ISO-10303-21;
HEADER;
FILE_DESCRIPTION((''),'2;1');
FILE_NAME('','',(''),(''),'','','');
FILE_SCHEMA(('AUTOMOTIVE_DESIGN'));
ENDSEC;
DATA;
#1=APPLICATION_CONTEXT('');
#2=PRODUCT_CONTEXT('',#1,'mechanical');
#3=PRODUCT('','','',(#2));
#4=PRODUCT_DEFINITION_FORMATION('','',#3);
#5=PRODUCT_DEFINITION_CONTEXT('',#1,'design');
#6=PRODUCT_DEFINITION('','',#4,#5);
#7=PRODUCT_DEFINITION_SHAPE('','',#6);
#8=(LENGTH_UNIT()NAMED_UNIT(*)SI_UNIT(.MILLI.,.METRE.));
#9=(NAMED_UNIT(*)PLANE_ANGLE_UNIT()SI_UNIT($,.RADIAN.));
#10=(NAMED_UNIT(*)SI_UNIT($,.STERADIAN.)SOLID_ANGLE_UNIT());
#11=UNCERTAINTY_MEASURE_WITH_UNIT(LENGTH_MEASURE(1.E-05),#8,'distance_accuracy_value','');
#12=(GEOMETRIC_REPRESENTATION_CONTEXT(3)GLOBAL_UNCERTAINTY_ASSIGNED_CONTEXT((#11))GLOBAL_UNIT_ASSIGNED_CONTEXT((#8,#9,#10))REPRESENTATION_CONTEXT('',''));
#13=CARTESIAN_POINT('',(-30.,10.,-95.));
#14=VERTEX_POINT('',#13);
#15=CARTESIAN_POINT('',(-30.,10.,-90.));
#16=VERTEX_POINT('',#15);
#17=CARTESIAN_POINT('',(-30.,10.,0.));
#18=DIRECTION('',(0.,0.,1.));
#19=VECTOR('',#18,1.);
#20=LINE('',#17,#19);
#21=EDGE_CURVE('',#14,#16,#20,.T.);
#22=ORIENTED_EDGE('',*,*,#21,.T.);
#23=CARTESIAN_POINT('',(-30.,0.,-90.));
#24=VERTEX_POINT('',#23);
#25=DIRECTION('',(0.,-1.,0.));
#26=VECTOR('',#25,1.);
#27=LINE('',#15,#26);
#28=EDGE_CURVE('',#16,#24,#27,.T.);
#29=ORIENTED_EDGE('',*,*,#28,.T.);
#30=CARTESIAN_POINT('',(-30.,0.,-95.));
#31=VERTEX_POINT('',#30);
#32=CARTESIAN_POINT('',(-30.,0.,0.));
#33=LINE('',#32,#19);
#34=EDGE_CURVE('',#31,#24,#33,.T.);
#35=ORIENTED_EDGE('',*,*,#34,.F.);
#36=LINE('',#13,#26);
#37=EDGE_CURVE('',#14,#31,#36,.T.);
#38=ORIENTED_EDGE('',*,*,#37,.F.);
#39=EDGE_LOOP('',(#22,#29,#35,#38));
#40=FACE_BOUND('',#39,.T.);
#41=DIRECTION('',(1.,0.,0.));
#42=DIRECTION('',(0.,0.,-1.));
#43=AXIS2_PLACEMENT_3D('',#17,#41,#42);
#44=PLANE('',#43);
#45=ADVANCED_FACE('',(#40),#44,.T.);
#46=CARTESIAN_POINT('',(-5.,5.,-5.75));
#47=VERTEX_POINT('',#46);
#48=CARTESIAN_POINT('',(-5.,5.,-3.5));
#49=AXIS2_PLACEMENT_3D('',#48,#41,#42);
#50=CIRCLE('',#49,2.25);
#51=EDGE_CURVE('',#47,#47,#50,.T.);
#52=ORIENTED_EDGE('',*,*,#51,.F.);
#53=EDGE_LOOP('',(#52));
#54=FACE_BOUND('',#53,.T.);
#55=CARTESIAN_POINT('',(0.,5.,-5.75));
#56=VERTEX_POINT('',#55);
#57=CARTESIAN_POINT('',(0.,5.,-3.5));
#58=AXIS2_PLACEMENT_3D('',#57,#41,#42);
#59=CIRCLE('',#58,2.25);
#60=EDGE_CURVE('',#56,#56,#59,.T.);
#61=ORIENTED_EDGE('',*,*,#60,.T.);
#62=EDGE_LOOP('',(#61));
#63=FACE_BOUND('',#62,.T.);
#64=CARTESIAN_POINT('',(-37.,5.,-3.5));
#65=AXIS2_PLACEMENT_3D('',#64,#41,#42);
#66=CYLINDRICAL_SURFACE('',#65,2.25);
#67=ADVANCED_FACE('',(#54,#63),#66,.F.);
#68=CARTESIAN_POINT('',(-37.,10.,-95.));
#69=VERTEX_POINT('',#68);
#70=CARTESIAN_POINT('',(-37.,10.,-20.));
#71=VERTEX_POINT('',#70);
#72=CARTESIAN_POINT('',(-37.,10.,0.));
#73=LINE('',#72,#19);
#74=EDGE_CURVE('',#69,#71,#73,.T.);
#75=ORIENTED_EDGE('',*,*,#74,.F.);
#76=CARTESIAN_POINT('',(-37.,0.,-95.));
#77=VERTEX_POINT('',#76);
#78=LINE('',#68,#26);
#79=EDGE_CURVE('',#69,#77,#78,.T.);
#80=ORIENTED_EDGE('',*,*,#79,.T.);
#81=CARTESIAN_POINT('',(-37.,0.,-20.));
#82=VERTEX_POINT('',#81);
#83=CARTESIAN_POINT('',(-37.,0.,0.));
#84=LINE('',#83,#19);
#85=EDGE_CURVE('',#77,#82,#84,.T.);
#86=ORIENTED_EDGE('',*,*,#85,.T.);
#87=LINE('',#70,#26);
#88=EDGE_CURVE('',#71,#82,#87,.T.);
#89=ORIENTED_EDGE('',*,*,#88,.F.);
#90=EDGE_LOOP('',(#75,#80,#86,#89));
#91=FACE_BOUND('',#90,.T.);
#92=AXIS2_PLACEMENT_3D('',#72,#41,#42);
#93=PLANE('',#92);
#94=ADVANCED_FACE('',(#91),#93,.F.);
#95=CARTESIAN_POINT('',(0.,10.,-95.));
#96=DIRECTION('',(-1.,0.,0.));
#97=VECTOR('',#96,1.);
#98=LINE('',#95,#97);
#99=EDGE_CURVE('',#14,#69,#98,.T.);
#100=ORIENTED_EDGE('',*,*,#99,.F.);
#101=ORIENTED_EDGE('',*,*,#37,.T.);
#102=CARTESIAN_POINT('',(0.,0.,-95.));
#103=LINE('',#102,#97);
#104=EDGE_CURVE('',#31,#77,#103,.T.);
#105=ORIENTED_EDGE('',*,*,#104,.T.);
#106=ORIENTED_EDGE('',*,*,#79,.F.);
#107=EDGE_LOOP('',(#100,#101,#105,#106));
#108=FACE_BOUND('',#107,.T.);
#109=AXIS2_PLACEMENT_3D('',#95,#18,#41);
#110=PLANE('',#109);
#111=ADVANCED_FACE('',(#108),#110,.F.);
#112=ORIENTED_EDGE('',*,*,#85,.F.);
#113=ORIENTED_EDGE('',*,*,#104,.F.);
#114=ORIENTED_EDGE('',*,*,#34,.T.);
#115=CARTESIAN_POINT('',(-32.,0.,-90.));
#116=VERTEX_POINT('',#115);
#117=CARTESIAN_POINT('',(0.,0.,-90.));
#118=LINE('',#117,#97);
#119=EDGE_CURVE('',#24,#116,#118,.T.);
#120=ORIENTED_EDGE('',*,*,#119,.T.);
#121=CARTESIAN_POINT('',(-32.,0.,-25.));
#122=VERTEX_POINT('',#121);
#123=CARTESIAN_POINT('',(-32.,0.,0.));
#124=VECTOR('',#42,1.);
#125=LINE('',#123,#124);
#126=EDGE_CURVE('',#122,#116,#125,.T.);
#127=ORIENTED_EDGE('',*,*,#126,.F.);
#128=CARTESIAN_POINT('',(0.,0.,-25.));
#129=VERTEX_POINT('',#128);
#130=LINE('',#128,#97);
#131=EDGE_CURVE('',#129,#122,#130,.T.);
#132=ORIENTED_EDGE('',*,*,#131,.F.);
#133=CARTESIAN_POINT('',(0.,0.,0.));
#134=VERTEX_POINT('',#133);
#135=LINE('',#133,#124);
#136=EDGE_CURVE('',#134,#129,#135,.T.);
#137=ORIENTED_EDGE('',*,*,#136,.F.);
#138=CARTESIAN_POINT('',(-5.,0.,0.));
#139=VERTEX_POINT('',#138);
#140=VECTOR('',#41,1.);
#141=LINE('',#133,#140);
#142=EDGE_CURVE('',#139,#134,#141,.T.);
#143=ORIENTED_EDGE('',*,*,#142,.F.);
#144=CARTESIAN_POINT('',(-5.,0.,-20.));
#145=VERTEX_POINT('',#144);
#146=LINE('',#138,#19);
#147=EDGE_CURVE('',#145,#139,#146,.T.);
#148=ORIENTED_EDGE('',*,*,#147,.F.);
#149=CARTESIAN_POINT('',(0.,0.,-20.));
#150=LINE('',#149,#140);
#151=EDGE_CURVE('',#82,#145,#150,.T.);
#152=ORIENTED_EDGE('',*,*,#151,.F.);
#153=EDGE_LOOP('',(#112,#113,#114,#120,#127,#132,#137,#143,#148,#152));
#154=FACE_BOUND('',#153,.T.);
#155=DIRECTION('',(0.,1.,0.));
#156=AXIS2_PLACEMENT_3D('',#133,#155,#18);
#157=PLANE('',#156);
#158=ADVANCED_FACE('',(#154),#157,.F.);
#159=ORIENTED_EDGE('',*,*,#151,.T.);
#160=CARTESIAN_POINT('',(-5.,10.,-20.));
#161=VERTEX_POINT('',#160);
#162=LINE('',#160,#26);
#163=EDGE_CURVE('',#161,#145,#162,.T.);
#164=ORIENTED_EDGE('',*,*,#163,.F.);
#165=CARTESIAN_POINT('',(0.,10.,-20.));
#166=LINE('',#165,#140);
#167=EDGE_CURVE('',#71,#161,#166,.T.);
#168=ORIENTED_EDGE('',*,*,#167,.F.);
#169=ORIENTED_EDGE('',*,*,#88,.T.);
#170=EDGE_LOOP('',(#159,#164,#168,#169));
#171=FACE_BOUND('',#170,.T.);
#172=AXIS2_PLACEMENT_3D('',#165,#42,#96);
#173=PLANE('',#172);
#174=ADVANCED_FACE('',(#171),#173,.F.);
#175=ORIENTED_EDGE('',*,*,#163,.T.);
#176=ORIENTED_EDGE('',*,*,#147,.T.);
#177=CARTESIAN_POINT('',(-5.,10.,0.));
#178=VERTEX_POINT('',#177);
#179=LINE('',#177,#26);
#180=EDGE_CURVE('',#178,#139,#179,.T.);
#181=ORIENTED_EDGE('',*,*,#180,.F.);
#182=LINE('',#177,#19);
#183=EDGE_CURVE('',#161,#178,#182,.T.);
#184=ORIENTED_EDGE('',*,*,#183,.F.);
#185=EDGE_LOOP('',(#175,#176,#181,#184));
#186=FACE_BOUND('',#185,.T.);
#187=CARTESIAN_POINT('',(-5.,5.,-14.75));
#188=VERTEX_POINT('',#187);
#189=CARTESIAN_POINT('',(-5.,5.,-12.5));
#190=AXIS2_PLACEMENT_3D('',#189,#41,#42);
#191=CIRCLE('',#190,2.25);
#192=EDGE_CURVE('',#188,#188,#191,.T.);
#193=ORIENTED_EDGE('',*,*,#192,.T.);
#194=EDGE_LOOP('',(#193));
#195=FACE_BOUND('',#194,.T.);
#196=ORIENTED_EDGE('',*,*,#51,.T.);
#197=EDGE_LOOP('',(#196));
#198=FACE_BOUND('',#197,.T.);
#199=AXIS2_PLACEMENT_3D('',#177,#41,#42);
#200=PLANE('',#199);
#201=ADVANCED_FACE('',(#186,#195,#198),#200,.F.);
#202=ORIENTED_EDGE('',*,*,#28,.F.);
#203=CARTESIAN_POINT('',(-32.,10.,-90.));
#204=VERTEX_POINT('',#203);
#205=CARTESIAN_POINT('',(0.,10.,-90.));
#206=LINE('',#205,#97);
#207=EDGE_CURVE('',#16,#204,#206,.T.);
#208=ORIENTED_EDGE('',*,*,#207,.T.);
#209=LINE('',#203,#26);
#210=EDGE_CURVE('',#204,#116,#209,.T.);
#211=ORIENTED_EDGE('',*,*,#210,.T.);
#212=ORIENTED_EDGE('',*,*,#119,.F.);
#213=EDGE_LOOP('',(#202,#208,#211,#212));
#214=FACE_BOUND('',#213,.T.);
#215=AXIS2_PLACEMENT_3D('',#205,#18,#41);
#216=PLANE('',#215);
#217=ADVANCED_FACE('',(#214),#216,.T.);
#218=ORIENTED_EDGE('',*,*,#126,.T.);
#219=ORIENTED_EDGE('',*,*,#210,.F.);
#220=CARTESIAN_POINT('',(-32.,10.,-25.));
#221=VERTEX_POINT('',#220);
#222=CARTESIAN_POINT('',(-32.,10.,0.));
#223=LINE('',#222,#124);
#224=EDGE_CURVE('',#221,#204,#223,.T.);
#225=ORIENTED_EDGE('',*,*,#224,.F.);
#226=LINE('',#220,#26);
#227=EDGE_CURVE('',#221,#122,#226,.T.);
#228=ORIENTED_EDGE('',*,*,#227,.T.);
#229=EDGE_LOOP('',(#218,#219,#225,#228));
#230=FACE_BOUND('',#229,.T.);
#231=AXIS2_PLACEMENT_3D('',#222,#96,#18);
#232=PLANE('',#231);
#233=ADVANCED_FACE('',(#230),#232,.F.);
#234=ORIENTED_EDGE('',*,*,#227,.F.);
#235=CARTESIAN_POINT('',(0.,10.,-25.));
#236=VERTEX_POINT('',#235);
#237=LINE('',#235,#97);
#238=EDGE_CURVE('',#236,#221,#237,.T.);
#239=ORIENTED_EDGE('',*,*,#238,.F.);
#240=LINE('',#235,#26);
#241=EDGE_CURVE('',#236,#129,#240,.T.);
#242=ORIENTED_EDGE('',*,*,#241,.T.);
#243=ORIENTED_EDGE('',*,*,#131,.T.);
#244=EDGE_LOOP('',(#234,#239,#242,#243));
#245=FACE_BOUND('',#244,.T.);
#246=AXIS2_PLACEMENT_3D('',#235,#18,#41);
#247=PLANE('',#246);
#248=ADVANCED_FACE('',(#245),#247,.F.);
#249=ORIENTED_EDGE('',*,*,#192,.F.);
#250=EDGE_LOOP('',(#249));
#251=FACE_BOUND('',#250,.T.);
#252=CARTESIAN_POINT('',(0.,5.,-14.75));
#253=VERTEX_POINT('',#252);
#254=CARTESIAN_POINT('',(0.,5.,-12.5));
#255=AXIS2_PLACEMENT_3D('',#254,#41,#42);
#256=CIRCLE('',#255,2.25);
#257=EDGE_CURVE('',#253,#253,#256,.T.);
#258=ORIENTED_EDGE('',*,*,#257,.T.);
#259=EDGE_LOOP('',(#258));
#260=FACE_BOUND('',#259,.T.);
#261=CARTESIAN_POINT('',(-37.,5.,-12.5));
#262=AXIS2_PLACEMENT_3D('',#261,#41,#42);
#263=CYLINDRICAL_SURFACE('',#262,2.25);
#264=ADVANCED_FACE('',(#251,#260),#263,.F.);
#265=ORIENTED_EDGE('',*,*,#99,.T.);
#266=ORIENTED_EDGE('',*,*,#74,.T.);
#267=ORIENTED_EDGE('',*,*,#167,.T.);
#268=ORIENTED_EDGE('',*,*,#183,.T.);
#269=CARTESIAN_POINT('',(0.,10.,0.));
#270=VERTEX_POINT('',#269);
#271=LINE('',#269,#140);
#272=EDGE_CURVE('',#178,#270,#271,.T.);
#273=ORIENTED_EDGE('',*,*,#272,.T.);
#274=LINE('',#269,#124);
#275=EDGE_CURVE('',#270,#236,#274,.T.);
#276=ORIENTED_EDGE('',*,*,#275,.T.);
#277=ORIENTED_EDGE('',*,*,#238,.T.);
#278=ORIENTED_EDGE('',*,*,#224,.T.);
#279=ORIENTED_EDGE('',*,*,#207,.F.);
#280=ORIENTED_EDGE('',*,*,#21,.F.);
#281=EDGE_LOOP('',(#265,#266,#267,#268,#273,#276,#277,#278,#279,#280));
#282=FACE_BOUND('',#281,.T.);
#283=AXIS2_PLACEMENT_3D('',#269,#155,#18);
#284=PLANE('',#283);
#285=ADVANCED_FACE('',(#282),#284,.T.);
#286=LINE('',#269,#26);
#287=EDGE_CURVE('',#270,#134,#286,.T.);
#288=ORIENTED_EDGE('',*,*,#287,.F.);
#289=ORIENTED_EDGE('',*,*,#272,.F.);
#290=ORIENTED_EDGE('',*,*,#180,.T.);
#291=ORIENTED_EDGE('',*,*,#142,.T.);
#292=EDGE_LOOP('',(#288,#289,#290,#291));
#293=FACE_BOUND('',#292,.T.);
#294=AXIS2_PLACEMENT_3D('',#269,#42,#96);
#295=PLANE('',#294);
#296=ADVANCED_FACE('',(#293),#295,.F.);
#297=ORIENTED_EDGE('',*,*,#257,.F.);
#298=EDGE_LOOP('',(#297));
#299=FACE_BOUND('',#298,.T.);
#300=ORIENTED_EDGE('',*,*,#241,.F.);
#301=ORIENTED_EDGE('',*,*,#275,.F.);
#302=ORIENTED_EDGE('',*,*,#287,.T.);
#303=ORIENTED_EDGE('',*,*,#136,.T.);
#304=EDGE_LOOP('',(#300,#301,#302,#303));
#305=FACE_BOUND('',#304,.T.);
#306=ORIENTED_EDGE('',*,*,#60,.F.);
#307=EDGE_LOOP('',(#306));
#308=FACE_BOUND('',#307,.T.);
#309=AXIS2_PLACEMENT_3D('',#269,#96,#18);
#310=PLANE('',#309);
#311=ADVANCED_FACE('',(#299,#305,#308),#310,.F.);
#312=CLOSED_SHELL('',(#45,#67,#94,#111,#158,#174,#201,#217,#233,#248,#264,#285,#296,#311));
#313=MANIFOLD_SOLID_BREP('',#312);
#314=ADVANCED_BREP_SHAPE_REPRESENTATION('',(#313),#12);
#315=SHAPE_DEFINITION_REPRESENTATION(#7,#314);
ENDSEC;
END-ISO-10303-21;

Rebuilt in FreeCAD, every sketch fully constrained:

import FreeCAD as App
import Part
import Sketcher

V = App.Vector

doc = App.newDocument("Part")
params = doc.addObject("Spreadsheet::Sheet", "Params")
for row, (alias, value) in enumerate([
    ("sketch1_width", "5 mm"),
    ("sketch1_width2", "32 mm"),
    ("sketch1_width3", "2 mm"),
    ("sketch1_height", "25 mm"),
    ("sketch1_height2", "65 mm"),
    ("pad1_length", "10 mm"),
    ("sketch2_diameter", "4.5 mm"),
], start=1):
    params.set(f"A{row}", alias)
    params.set(f"B{row}", "=" + value)
    params.setAlias(f"B{row}", alias)

body = doc.addObject("PartDesign::Body", "Body")

# Sketch on XZ plane
sketch1 = body.newObject("Sketcher::SketchObject", "Sketch")
sketch1.AttachmentSupport = (doc.getObject("XZ_Plane"), [""])
sketch1.MapMode = "FlatFace"
sketch1.addGeometry([
    Part.LineSegment(V(-5, 0, 0), V(0, 0, 0)),  # 0
    Part.LineSegment(V(0, 0, 0), V(0, -25, 0)),  # 1
    Part.LineSegment(V(0, -25, 0), V(-32, -25, 0)),  # 2
    Part.LineSegment(V(-32, -25, 0), V(-32, -90, 0)),  # 3
    Part.LineSegment(V(-32, -90, 0), V(-30, -90, 0)),  # 4
    Part.LineSegment(V(-30, -90, 0), V(-30, -95, 0)),  # 5
    Part.LineSegment(V(-30, -95, 0), V(-37, -95, 0)),  # 6
    Part.LineSegment(V(-37, -95, 0), V(-37, -20, 0)),  # 7
    Part.LineSegment(V(-37, -20, 0), V(-5, -20, 0)),  # 8
    Part.LineSegment(V(-5, -20, 0), V(-5, 0, 0)),  # 9
], False)
sketch1.addConstraint([
    Sketcher.Constraint("Coincident", 0, 2, 1, 1),
    Sketcher.Constraint("Coincident", 1, 2, 2, 1),
    Sketcher.Constraint("Coincident", 2, 2, 3, 1),
    Sketcher.Constraint("Coincident", 3, 2, 4, 1),
    Sketcher.Constraint("Coincident", 4, 2, 5, 1),
    Sketcher.Constraint("Coincident", 5, 2, 6, 1),
    Sketcher.Constraint("Coincident", 6, 2, 7, 1),
    Sketcher.Constraint("Coincident", 7, 2, 8, 1),
    Sketcher.Constraint("Coincident", 8, 2, 9, 1),
    Sketcher.Constraint("Coincident", 9, 2, 0, 1),
    Sketcher.Constraint("Horizontal", 0),
    Sketcher.Constraint("Vertical", 1),
    Sketcher.Constraint("Horizontal", 2),
    Sketcher.Constraint("Vertical", 3),
    Sketcher.Constraint("Horizontal", 4),
    Sketcher.Constraint("Vertical", 5),
    Sketcher.Constraint("Horizontal", 6),
    Sketcher.Constraint("Vertical", 7),
    Sketcher.Constraint("Horizontal", 8),
    Sketcher.Constraint("Vertical", 9),
    Sketcher.Constraint("Coincident", 0, 2, -1, 1),
    Sketcher.Constraint("Equal", 2, 8),
    Sketcher.Constraint("Equal", 0, 5),
    Sketcher.Constraint("DistanceX", 0, 1, 0, 2, 5.0),
    Sketcher.Constraint("DistanceX", 2, 2, 2, 1, 32.0),
    Sketcher.Constraint("DistanceX", 4, 1, 4, 2, 2.0),
    Sketcher.Constraint("DistanceY", 1, 2, 1, 1, 25.0),
    Sketcher.Constraint("DistanceY", 3, 2, 3, 1, 65.0),
    Sketcher.Constraint("DistanceY", 7, 1, 7, 2, 75.0),
])
sketch1.setExpression("Constraints[23]", "Params.sketch1_width")
sketch1.setExpression("Constraints[24]", "Params.sketch1_width2")
sketch1.setExpression("Constraints[25]", "Params.sketch1_width3")
sketch1.setExpression("Constraints[26]", "Params.sketch1_height")
sketch1.setExpression("Constraints[27]", "Params.sketch1_height2")
pad1 = body.newObject("PartDesign::Pad", "Pad")
pad1.Profile = sketch1
pad1.setExpression("Length", "Params.pad1_length")
pad1.Reversed = True

# Sketch on YZ plane
sketch2 = body.newObject("Sketcher::SketchObject", "Sketch001")
sketch2.AttachmentSupport = (doc.getObject("YZ_Plane"), [""])
sketch2.MapMode = "FlatFace"
sketch2.addGeometry([
    Part.Circle(V(5, -3.5, 0), V(0, 0, 1), 2.25),
    Part.Circle(V(5, -12.5, 0), V(0, 0, 1), 2.25),
], False)
sketch2.addConstraint([
    Sketcher.Constraint("Equal", 0, 1),
    Sketcher.Constraint("Vertical", 0, 3, 1, 3),
    Sketcher.Constraint("Diameter", 0, 4.5),
    Sketcher.Constraint("DistanceX", -1, 1, 0, 3, 5.0),
    Sketcher.Constraint("DistanceY", 1, 3, 0, 3, 9.0),
    Sketcher.Constraint("DistanceY", 0, 3, -1, 1, 3.5),
])
sketch2.setExpression("Constraints[2]", "Params.sketch2_diameter")
pocket1 = body.newObject("PartDesign::Pocket", "Pocket")
pocket1.Profile = sketch2
pocket1.Type = "ThroughAll"

doc.recompute()
